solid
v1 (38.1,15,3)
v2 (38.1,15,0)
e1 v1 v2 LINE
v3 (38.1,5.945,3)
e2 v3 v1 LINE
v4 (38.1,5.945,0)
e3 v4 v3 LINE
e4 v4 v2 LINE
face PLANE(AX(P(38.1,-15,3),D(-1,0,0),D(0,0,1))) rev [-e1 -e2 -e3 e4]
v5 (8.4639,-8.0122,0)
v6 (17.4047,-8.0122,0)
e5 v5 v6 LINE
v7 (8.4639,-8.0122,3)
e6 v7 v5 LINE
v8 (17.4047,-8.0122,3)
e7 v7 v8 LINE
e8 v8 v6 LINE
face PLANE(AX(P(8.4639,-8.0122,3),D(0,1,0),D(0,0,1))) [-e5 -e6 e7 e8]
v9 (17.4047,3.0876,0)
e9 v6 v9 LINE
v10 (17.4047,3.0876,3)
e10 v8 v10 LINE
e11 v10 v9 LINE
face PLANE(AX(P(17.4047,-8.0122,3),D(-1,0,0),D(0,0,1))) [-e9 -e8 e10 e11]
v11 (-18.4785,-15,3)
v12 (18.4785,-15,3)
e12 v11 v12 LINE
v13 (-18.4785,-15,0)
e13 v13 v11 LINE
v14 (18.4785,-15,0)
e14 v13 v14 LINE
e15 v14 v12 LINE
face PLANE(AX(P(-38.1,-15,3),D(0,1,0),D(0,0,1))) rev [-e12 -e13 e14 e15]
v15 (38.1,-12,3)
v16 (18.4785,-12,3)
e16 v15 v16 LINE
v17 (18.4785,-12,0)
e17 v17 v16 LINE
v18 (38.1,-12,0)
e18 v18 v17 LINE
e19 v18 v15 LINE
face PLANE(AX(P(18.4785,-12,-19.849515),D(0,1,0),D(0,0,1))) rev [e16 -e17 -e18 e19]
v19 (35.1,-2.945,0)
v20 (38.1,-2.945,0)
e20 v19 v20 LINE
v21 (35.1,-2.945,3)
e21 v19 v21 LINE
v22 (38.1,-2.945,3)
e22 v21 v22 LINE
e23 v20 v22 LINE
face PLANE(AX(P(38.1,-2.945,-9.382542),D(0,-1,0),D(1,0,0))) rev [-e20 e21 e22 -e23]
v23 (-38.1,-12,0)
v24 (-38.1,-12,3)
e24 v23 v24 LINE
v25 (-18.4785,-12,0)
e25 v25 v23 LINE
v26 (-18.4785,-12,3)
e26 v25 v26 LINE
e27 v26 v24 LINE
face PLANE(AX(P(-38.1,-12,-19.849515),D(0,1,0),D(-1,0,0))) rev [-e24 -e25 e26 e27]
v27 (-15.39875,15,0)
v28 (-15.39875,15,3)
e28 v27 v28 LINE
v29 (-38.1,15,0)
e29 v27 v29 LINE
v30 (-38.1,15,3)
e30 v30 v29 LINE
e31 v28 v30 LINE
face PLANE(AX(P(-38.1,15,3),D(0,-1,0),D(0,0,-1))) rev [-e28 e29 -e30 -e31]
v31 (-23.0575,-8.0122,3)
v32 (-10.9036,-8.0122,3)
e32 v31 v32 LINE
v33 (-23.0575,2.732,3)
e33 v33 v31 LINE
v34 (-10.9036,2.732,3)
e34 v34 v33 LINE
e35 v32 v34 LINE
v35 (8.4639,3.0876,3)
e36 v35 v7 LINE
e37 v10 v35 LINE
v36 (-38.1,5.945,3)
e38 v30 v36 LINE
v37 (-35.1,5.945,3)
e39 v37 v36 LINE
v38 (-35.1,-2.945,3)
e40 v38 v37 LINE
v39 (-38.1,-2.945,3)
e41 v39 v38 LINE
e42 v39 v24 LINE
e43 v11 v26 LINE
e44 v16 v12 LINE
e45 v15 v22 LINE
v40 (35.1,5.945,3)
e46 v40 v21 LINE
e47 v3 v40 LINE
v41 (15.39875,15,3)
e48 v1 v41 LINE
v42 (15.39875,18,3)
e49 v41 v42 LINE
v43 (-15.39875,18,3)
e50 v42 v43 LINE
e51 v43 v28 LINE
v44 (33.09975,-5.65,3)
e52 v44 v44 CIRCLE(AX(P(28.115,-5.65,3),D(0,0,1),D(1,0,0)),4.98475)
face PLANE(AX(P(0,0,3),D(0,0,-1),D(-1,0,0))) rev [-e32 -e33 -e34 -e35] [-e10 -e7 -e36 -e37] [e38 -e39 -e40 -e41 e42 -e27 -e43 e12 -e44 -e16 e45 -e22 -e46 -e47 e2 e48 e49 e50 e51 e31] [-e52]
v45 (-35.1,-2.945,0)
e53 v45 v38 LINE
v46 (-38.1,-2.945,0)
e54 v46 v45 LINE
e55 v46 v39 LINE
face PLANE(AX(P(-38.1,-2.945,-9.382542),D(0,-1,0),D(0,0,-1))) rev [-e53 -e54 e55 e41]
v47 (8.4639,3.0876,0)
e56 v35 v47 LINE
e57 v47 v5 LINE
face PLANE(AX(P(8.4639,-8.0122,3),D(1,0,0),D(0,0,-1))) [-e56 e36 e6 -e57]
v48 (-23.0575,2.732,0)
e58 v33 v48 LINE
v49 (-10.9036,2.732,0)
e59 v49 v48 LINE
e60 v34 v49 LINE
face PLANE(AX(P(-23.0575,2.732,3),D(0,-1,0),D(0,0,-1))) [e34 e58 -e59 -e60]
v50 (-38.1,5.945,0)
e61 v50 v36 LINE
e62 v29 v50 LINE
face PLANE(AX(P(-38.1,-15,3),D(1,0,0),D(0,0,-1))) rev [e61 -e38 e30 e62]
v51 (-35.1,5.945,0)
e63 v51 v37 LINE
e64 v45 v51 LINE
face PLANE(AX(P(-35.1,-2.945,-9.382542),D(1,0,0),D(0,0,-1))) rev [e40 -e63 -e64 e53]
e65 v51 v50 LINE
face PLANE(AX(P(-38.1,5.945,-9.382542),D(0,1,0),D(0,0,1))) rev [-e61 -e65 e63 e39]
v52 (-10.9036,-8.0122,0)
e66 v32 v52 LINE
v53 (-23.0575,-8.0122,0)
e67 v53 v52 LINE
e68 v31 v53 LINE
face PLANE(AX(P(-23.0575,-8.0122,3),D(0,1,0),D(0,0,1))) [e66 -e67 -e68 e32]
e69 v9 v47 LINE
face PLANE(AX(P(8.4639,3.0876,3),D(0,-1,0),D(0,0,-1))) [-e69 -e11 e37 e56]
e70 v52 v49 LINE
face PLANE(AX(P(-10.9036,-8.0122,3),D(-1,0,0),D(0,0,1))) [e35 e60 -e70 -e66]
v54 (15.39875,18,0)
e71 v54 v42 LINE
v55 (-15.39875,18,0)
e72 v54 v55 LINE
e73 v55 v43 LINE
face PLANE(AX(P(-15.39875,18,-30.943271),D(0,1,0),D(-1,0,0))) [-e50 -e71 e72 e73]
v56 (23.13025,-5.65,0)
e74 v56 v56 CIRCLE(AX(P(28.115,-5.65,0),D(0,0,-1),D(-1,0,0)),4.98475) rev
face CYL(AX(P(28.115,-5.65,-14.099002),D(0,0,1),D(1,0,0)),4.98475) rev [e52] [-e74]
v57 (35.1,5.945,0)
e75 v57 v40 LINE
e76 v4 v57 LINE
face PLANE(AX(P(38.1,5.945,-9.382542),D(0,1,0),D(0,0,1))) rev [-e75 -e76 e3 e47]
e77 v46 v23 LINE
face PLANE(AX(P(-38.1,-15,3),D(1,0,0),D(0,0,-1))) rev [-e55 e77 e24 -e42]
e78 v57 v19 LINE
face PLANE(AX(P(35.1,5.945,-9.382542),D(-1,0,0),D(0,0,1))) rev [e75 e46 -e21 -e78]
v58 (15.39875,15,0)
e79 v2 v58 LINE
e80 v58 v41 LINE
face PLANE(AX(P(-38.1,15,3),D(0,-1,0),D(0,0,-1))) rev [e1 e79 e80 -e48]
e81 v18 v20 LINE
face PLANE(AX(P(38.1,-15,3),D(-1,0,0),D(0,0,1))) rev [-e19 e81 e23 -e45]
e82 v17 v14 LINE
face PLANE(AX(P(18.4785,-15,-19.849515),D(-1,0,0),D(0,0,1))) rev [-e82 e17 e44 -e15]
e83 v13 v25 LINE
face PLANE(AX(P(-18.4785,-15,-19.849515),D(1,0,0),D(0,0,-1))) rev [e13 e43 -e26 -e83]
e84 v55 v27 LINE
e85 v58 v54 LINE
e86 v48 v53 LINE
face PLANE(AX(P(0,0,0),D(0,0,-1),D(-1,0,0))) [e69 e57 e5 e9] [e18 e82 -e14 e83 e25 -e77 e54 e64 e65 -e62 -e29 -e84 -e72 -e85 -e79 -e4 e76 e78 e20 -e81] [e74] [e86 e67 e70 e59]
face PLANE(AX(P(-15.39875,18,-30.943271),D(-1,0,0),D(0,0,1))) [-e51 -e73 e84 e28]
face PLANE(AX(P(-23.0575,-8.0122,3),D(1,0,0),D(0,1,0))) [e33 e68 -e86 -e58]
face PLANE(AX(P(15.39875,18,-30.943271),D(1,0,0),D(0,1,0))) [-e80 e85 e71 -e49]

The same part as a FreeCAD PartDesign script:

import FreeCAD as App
import Part
import Sketcher
from FreeCAD import Vector
Q = App.Units.Quantity

doc = App.newDocument("Part")
body = doc.addObject("PartDesign::Body", "Body")

# Sketch on XY plane
sketch1 = doc.addObject("Sketcher::SketchObject", "Sketch")
body.addObject(sketch1)
sketch1.AttachmentSupport = (doc.XY_Plane, [""])
sketch1.MapMode = "FlatFace"
sketch1.addGeometry([
    Part.LineSegment(Vector(-38.1, 15, 0), Vector(-38.1, -15, 0)),  # 0
    Part.LineSegment(Vector(-38.1, -15, 0), Vector(38.1, -15, 0)),  # 1
    Part.LineSegment(Vector(38.1, -15, 0), Vector(38.1, 15, 0)),  # 2
    Part.LineSegment(Vector(38.1, 15, 0), Vector(-38.1, 15, 0)),  # 3
    Part.LineSegment(Vector(-10.9036, -8.0122, 0), Vector(-23.0575, -8.0122, 0)),  # 4
    Part.LineSegment(Vector(-23.0575, -8.0122, 0), Vector(-23.0575, 2.732, 0)),  # 5
    Part.LineSegment(Vector(-23.0575, 2.732, 0), Vector(-10.9036, 2.732, 0)),  # 6
    Part.LineSegment(Vector(-10.9036, 2.732, 0), Vector(-10.9036, -8.0122, 0)),  # 7
    Part.LineSegment(Vector(17.4047, -8.0122, 0), Vector(8.4639, -8.0122, 0)),  # 8
    Part.LineSegment(Vector(8.4639, -8.0122, 0), Vector(8.4639, 3.0876, 0)),  # 9
    Part.LineSegment(Vector(8.4639, 3.0876, 0), Vector(17.4047, 3.0876, 0)),  # 10
    Part.LineSegment(Vector(17.4047, 3.0876, 0), Vector(17.4047, -8.0122, 0)),  # 11
], False)
sketch1.addConstraint([
    Sketcher.Constraint("Coincident", 0, 2, 1, 1),
    Sketcher.Constraint("Coincident", 1, 2, 2, 1),
    Sketcher.Constraint("Coincident", 2, 2, 3, 1),
    Sketcher.Constraint("Coincident", 3, 2, 0, 1),
    Sketcher.Constraint("Coincident", 4, 2, 5, 1),
    Sketcher.Constraint("Coincident", 5, 2, 6, 1),
    Sketcher.Constraint("Coincident", 6, 2, 7, 1),
    Sketcher.Constraint("Coincident", 7, 2, 4, 1),
    Sketcher.Constraint("Coincident", 8, 2, 9, 1),
    Sketcher.Constraint("Coincident", 9, 2, 10, 1),
    Sketcher.Constraint("Coincident", 10, 2, 11, 1),
    Sketcher.Constraint("Coincident", 11, 2, 8, 1),
    Sketcher.Constraint("Vertical", 0),
    Sketcher.Constraint("Horizontal", 1),
    Sketcher.Constraint("Vertical", 2),
    Sketcher.Constraint("Horizontal", 3),
    Sketcher.Constraint("Horizontal", 4),
    Sketcher.Constraint("Vertical", 5),
    Sketcher.Constraint("Horizontal", 6),
    Sketcher.Constraint("Vertical", 7),
    Sketcher.Constraint("Horizontal", 8),
    Sketcher.Constraint("Vertical", 9),
    Sketcher.Constraint("Horizontal", 10),
    Sketcher.Constraint("Vertical", 11),
    Sketcher.Constraint("Symmetric", 0, 2, 2, 2, -1, 1),
    Sketcher.Constraint("Horizontal", 7, 2, 8, 2),
    Sketcher.Constraint("DistanceX", 1, 1, 1, 2, Q("3 in")),
    Sketcher.Constraint("DistanceX", 8, 2, 8, 1, Q("0.352 in")),
    Sketcher.Constraint("DistanceY", 5, 1, 5, 2, Q("0.423 in")),
    Sketcher.Constraint("DistanceY", 9, 1, 9, 2, Q("0.437 in")),
    Sketcher.Constraint("DistanceX", 4, 2, 4, 1, Q("0.4785 in")),
    Sketcher.Constraint("DistanceX", 4, 2, 8, 2, Q("1.241 in")),
    Sketcher.Constraint("DistanceY", 0, 2, 0, 1, 30.0),
    Sketcher.Constraint("DistanceX", 4, 2, -1, 1, 23.0575),
    Sketcher.Constraint("DistanceY", 4, 2, -1, 1, 8.0122),
])
pad1 = doc.addObject("PartDesign::Pad", "Pad")
body.addObject(pad1)
pad1.Profile = sketch1
pad1.Length = 3

# Sketch on XY plane
sketch2 = doc.addObject("Sketcher::SketchObject", "Sketch001")
body.addObject(sketch2)
sketch2.AttachmentSupport = (doc.XY_Plane, [""])
sketch2.MapMode = "FlatFace"
sketch2.AttachmentOffset = App.Placement(Vector(0, 0, 3), App.Rotation())
sketch2.addGeometry([
    Part.LineSegment(Vector(-38.1, -12, 0), Vector(-38.1, -15, 0)),  # 0
    Part.LineSegment(Vector(-38.1, -15, 0), Vector(-18.4785, -15, 0)),  # 1
    Part.LineSegment(Vector(-18.4785, -15, 0), Vector(-18.4785, -12, 0)),  # 2
    Part.LineSegment(Vector(-18.4785, -12, 0), Vector(-38.1, -12, 0)),  # 3
    Part.LineSegment(Vector(18.4785, -12, 0), Vector(18.4785, -15, 0)),  # 4
    Part.LineSegment(Vector(18.4785, -15, 0), Vector(38.1, -15, 0)),  # 5
    Part.LineSegment(Vector(38.1, -15, 0), Vector(38.1, -12, 0)),  # 6
    Part.LineSegment(Vector(38.1, -12, 0), Vector(18.4785, -12, 0)),  # 7
], False)
sketch2.addConstraint([
    Sketcher.Constraint("Coincident", 0, 2, 1, 1),
    Sketcher.Constraint("Coincident", 1, 2, 2, 1),
    Sketcher.Constraint("Coincident", 2, 2, 3, 1),
    Sketcher.Constraint("Coincident", 3, 2, 0, 1),
    Sketcher.Constraint("Coincident", 4, 2, 5, 1),
    Sketcher.Constraint("Coincident", 5, 2, 6, 1),
    Sketcher.Constraint("Coincident", 6, 2, 7, 1),
    Sketcher.Constraint("Coincident", 7, 2, 4, 1),
    Sketcher.Constraint("Vertical", 0),
    Sketcher.Constraint("Horizontal", 1),
    Sketcher.Constraint("Vertical", 2),
    Sketcher.Constraint("Horizontal", 3),
    Sketcher.Constraint("Vertical", 4),
    Sketcher.Constraint("Horizontal", 5),
    Sketcher.Constraint("Vertical", 6),
    Sketcher.Constraint("Horizontal", 7),
    Sketcher.Constraint("Symmetric", 1, 2, 4, 2, -2),
    Sketcher.Constraint("Symmetric", 3, 2, 6, 2, -2),
    Sketcher.Constraint("DistanceX", 0, 2, 5, 2, Q("3 in")),
    Sketcher.Constraint("DistanceX", 1, 1, 1, 2, Q("0.7725 in")),
    Sketcher.Constraint("DistanceY", 0, 2, 0, 1, 3.0),
    Sketcher.Constraint("DistanceY", 0, 2, -1, 1, 15.0),
])
pocket1 = doc.addObject("PartDesign::Pocket", "Pocket")
body.addObject(pocket1)
pocket1.Profile = sketch2
pocket1.Length = 3

# Sketch on XY plane
sketch3 = doc.addObject("Sketcher::SketchObject", "Sketch002")
body.addObject(sketch3)
sketch3.AttachmentSupport = (doc.XY_Plane, [""])
sketch3.MapMode = "FlatFace"
sketch3.AttachmentOffset = App.Placement(Vector(0, 0, 3), App.Rotation())
sketch3.addGeometry([
    Part.LineSegment(Vector(-38.1, 5.945, 0), Vector(-38.1, -2.945, 0)),  # 0
    Part.LineSegment(Vector(-38.1, -2.945, 0), Vector(-35.1, -2.945, 0)),  # 1
    Part.LineSegment(Vector(-35.1, -2.945, 0), Vector(-35.1, 5.945, 0)),  # 2
    Part.LineSegment(Vector(-35.1, 5.945, 0), Vector(-38.1, 5.945, 0)),  # 3
    Part.LineSegment(Vector(35.1, 5.945, 0), Vector(35.1, -2.945, 0)),  # 4
    Part.LineSegment(Vector(35.1, -2.945, 0), Vector(38.1, -2.945, 0)),  # 5
    Part.LineSegment(Vector(38.1, -2.945, 0), Vector(38.1, 5.945, 0)),  # 6
    Part.LineSegment(Vector(38.1, 5.945, 0), Vector(35.1, 5.945, 0)),  # 7
], False)
sketch3.addConstraint([
    Sketcher.Constraint("Coincident", 0, 2, 1, 1),
    Sketcher.Constraint("Coincident", 1, 2, 2, 1),
    Sketcher.Constraint("Coincident", 2, 2, 3, 1),
    Sketcher.Constraint("Coincident", 3, 2, 0, 1),
    Sketcher.Constraint("Coincident", 4, 2, 5, 1),
    Sketcher.Constraint("Coincident", 5, 2, 6, 1),
    Sketcher.Constraint("Coincident", 6, 2, 7, 1),
    Sketcher.Constraint("Coincident", 7, 2, 4, 1),
    Sketcher.Constraint("Vertical", 0),
    Sketcher.Constraint("Horizontal", 1),
    Sketcher.Constraint("Vertical", 2),
    Sketcher.Constraint("Horizontal", 3),
    Sketcher.Constraint("Vertical", 4),
    Sketcher.Constraint("Horizontal", 5),
    Sketcher.Constraint("Vertical", 6),
    Sketcher.Constraint("Horizontal", 7),
    Sketcher.Constraint("Symmetric", 1, 2, 4, 2, -2),
    Sketcher.Constraint("Symmetric", 3, 2, 6, 2, -2),
    Sketcher.Constraint("DistanceX", 0, 2, 5, 2, Q("3 in")),
    Sketcher.Constraint("DistanceY", 0, 2, 0, 1, Q("0.35 in")),
    Sketcher.Constraint("DistanceX", 1, 1, 1, 2, 3.0),
    Sketcher.Constraint("DistanceY", 0, 2, -1, 1, 2.945),
])
pocket2 = doc.addObject("PartDesign::Pocket", "Pocket001")
body.addObject(pocket2)
pocket2.Profile = sketch3
pocket2.Length = 3

# Sketch on XY plane
sketch4 = doc.addObject("Sketcher::SketchObject", "Sketch003")
body.addObject(sketch4)
sketch4.AttachmentSupport = (doc.XY_Plane, [""])
sketch4.MapMode = "FlatFace"
sketch4.AttachmentOffset = App.Placement(Vector(0, 0, 3), App.Rotation())
sketch4.addGeometry([
    Part.LineSegment(Vector(-15.39875, 18, 0), Vector(-15.39875, 15, 0)),
    Part.LineSegment(Vector(-15.39875, 15, 0), Vector(15.39875, 15, 0)),
    Part.LineSegment(Vector(15.39875, 15, 0), Vector(15.39875, 18, 0)),
    Part.LineSegment(Vector(15.39875, 18, 0), Vector(-15.39875, 18, 0)),
], False)
sketch4.addConstraint([
    Sketcher.Constraint("Coincident", 0, 2, 1, 1),
    Sketcher.Constraint("Coincident", 1, 2, 2, 1),
    Sketcher.Constraint("Coincident", 2, 2, 3, 1),
    Sketcher.Constraint("Coincident", 3, 2, 0, 1),
    Sketcher.Constraint("Vertical", 0),
    Sketcher.Constraint("Horizontal", 1),
    Sketcher.Constraint("Vertical", 2),
    Sketcher.Constraint("Horizontal", 3),
    Sketcher.Constraint("DistanceX", 1, 1, 1, 2, Q("1.2125 in")),
    Sketcher.Constraint("DistanceY", 0, 2, 0, 1, 3.0),
    Sketcher.Constraint("DistanceY", -1, 1, 0, 2, 15.0),
    Sketcher.Constraint("DistanceX", 0, 2, -1, 1, 15.39875),
])
pad2 = doc.addObject("PartDesign::Pad", "Pad001")
body.addObject(pad2)
pad2.Profile = sketch4
pad2.Length = 3
pad2.Reversed = True

# Sketch on XY plane
sketch5 = doc.addObject("Sketcher::SketchObject", "Sketch004")
body.addObject(sketch5)
sketch5.AttachmentSupport = (doc.XY_Plane, [""])
sketch5.MapMode = "FlatFace"
sketch5.AttachmentOffset = App.Placement(Vector(0, 0, 3), App.Rotation())
sketch5.addGeometry(Part.Circle(Vector(28.115, -5.65, 0), Vector(0, 0, 1), 4.98475), False)
sketch5.addConstraint([
    Sketcher.Constraint("Diameter", 0, Q("0.3925 in")),
    Sketcher.Constraint("DistanceX", -1, 1, 0, 3, 28.115),
    Sketcher.Constraint("DistanceY", 0, 3, -1, 1, 5.65),
])
pocket3 = doc.addObject("PartDesign::Pocket", "Pocket002")
body.addObject(pocket3)
pocket3.Profile = sketch5
pocket3.Length = 3

doc.recompute()
